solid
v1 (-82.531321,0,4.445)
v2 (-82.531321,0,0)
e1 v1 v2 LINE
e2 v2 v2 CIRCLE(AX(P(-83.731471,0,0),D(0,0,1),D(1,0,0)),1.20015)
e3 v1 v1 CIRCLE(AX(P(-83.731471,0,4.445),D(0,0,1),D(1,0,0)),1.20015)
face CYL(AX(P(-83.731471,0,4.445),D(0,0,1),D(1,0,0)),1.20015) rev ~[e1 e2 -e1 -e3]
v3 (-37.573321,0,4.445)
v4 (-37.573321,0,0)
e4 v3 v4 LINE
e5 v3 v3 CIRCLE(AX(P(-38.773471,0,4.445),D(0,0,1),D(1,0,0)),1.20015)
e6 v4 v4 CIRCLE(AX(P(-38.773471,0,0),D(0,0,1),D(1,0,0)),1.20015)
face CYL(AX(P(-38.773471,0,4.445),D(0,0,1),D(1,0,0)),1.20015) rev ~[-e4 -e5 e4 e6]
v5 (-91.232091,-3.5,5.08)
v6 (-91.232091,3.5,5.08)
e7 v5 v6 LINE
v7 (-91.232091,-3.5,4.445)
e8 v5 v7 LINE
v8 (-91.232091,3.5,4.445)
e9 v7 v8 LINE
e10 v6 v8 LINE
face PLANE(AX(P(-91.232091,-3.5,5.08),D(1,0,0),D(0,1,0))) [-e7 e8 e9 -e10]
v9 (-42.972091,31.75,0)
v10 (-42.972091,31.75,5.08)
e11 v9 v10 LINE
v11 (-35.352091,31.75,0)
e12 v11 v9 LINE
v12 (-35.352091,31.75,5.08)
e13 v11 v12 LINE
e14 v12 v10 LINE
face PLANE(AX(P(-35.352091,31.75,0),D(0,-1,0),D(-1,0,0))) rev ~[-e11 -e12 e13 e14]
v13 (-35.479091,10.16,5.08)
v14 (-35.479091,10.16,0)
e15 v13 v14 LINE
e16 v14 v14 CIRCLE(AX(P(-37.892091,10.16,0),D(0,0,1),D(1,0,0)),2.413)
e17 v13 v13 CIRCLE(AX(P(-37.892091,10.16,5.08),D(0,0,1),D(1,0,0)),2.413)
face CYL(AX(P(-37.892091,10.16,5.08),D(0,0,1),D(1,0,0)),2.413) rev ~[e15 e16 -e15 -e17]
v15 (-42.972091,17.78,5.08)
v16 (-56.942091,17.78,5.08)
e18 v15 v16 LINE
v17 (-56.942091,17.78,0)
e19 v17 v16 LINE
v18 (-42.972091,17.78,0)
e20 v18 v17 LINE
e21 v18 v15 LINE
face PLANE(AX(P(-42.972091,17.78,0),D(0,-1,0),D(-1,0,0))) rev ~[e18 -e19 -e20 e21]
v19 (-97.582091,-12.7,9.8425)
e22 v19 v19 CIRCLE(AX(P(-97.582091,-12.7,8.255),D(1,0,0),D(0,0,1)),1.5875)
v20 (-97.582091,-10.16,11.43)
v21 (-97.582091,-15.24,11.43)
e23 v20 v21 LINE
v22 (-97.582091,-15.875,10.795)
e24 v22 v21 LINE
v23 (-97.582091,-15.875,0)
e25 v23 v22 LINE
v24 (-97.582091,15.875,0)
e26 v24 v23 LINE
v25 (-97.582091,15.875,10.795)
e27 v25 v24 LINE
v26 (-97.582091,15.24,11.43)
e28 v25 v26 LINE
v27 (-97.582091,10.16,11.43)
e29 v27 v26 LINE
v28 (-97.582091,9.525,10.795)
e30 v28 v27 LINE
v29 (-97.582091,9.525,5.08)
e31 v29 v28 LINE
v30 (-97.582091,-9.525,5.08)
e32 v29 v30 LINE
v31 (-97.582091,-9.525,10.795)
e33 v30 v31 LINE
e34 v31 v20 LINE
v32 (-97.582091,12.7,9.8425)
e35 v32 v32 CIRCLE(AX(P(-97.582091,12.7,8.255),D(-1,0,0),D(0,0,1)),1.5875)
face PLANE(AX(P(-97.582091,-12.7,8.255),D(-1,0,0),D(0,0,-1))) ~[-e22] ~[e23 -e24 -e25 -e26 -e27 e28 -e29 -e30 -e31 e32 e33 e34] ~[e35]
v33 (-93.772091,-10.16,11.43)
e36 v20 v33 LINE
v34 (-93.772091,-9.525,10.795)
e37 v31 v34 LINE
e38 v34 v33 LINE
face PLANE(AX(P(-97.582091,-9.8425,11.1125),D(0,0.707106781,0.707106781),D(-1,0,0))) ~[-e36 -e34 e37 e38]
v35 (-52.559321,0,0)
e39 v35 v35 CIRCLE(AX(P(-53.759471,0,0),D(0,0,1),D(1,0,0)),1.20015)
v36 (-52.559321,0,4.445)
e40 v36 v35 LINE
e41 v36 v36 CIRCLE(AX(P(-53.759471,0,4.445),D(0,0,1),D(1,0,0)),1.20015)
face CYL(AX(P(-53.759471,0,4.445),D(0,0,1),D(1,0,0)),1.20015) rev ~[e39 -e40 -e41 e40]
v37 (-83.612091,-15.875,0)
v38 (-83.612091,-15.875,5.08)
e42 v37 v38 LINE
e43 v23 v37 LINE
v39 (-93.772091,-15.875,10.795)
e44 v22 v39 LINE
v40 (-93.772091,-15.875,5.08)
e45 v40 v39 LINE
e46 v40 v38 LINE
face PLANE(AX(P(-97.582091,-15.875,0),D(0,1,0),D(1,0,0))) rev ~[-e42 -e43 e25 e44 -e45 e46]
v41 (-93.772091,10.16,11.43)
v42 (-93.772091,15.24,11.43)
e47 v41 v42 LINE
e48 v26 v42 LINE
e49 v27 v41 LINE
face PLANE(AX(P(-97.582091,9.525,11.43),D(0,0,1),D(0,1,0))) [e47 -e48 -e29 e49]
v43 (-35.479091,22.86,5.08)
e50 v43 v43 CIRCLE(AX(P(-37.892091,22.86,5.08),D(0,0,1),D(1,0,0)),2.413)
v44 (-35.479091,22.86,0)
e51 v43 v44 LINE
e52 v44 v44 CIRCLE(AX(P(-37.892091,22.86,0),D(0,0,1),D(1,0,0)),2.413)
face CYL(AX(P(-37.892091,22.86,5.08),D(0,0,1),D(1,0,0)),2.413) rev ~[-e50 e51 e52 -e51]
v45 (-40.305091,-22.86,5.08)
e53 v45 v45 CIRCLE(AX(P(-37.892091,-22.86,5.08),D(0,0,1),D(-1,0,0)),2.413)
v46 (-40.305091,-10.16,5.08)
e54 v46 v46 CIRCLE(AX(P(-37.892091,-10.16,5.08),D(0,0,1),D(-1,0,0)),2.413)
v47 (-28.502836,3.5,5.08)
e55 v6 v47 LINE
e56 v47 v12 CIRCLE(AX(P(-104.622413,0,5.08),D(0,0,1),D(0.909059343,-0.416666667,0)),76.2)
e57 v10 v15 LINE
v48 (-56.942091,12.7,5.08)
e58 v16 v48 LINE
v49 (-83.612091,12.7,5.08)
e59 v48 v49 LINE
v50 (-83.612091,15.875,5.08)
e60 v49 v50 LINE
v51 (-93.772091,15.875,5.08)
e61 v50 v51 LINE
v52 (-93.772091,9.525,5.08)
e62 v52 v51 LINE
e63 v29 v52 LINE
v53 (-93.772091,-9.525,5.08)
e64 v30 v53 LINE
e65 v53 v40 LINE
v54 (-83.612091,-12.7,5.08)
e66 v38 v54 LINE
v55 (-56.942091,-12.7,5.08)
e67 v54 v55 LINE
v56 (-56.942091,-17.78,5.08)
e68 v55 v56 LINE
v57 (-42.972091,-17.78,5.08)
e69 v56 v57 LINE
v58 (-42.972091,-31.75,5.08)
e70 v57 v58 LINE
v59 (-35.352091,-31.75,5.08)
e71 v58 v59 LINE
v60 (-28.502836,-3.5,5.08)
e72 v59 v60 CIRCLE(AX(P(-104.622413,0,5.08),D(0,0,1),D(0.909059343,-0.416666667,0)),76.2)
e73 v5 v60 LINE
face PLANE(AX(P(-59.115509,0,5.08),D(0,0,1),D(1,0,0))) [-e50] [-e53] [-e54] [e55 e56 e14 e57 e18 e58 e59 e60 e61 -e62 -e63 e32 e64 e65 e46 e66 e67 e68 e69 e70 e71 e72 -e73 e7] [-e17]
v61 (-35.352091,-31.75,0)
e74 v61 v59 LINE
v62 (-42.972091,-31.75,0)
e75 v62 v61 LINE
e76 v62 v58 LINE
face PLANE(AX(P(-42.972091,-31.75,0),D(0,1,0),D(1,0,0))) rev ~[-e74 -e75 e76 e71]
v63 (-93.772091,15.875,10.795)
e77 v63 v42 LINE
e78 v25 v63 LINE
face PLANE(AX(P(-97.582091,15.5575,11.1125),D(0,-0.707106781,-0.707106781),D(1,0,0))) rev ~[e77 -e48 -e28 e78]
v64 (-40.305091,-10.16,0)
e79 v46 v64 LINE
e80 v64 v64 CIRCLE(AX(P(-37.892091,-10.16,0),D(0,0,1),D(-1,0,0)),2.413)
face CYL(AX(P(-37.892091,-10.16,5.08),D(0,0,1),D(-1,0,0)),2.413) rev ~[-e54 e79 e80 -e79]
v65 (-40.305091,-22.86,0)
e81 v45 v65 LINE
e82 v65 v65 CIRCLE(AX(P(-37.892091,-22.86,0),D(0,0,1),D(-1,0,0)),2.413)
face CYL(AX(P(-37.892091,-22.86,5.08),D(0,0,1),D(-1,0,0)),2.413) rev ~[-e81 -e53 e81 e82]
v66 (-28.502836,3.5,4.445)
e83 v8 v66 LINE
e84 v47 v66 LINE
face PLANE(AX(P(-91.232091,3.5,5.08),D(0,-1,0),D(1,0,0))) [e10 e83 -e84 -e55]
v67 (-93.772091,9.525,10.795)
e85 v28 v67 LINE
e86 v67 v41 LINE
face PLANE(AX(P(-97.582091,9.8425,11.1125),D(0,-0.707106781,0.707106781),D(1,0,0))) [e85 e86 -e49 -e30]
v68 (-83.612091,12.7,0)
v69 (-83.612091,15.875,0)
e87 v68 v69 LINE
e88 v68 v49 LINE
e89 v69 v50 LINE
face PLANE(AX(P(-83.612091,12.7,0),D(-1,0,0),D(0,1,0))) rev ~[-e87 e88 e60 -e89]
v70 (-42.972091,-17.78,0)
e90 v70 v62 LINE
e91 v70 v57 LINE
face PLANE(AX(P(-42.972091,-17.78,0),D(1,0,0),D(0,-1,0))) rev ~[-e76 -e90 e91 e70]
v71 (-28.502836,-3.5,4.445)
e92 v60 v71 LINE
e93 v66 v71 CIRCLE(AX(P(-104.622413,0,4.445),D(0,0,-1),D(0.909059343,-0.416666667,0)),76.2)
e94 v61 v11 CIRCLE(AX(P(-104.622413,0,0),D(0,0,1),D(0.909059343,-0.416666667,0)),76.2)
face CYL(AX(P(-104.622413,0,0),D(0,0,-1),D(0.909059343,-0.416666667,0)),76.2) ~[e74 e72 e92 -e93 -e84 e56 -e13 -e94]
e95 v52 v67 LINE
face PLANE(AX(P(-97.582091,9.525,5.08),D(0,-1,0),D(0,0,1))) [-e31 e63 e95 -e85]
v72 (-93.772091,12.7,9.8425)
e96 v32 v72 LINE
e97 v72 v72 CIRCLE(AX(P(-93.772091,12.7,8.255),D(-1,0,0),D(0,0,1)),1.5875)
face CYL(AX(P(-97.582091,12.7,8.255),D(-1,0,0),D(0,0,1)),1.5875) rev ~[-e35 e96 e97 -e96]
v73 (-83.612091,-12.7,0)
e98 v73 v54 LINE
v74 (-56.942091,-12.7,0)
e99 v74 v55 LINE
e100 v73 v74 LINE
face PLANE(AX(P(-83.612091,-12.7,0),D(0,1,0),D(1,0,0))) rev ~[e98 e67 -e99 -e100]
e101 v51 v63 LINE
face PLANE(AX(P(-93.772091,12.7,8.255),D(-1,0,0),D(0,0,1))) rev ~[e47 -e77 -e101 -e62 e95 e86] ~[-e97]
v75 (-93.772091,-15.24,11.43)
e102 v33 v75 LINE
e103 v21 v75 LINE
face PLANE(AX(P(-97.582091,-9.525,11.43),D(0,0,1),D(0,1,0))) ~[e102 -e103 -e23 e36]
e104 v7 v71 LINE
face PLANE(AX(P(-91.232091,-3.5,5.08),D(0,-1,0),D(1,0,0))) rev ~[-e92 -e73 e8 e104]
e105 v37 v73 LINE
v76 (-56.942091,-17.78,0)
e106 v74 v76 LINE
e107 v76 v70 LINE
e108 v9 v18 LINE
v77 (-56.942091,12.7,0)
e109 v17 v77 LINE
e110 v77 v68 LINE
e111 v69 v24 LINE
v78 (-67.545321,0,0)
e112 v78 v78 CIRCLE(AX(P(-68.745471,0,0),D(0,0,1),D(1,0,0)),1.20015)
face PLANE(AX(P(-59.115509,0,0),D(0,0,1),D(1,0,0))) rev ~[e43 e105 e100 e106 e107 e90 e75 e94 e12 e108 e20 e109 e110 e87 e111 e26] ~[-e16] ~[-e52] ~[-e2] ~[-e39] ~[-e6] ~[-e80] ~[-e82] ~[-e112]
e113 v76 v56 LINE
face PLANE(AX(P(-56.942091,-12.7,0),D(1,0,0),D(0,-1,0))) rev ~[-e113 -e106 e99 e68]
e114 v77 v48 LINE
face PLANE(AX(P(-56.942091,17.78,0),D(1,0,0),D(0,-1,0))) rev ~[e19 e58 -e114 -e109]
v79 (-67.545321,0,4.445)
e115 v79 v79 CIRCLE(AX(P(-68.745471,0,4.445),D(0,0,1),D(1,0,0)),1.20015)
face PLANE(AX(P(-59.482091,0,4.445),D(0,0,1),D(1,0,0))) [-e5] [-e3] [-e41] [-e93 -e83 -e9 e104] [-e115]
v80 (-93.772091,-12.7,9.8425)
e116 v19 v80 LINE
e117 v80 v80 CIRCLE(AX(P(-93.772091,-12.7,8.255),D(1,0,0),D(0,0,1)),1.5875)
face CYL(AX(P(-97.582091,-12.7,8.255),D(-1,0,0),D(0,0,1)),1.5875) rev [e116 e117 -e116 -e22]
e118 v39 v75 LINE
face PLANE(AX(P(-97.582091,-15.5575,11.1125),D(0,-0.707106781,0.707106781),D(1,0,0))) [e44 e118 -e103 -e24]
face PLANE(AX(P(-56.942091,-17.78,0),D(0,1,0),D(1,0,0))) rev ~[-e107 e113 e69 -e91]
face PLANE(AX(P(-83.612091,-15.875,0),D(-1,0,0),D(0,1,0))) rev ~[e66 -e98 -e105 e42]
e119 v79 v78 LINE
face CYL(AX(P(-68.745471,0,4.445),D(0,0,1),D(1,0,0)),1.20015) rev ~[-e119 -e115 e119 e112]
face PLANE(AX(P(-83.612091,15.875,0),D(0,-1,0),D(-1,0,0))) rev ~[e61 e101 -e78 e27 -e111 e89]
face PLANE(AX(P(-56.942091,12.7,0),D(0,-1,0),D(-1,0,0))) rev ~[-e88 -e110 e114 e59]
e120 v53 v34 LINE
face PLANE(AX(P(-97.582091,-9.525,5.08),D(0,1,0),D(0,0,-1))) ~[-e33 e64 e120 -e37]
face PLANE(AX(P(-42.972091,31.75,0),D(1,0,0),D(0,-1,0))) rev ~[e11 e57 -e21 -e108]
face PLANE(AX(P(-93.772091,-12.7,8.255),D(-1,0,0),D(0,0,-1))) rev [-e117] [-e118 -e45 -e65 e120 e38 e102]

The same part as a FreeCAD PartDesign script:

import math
import FreeCAD as App
import Part
import Sketcher
Q = App.Units.Quantity


def edges_at(feature, points):
    """Names of the edges that pass closest to the given points."""
    edges = feature.Shape.Edges
    near = lambda p: min(range(len(edges)), key=lambda i: edges[i].distToShape(Part.Vertex(*p))[0])
    return sorted({f"Edge{near(p) + 1}" for p in points})

doc = App.newDocument("Part")
body = doc.addObject("PartDesign::Body", "Body")

sketch1 = body.newObject("Sketcher::SketchObject", "Sketch")
sketch1.AttachmentSupport = (doc.getObject("XY_Plane"), [""])
sketch1.MapMode = "FlatFace"
sketch1.addGeometry([
    Part.LineSegment(App.Vector(-35.352091, 31.75, 0), App.Vector(-42.972091, 31.75, 0)),
    Part.LineSegment(App.Vector(-42.972091, 31.75, 0), App.Vector(-42.972091, 17.78, 0)),
    Part.LineSegment(App.Vector(-42.972091, 17.78, 0), App.Vector(-56.942091, 17.78, 0)),
    Part.LineSegment(App.Vector(-56.942091, 17.78, 0), App.Vector(-56.942091, 12.7, 0)),
    Part.LineSegment(App.Vector(-56.942091, 12.7, 0), App.Vector(-83.612091, 12.7, 0)),
    Part.LineSegment(App.Vector(-83.612091, 12.7, 0), App.Vector(-83.612091, 15.875, 0)),
    Part.LineSegment(App.Vector(-83.612091, 15.875, 0), App.Vector(-97.582091, 15.875, 0)),
    Part.LineSegment(App.Vector(-97.582091, 15.875, 0), App.Vector(-97.582091, -15.875, 0)),
    Part.LineSegment(App.Vector(-97.582091, -15.875, 0), App.Vector(-83.612091, -15.875, 0)),
    Part.LineSegment(App.Vector(-83.612091, -15.875, 0), App.Vector(-83.612091, -12.7, 0)),
    Part.LineSegment(App.Vector(-83.612091, -12.7, 0), App.Vector(-56.942091, -12.7, 0)),
    Part.LineSegment(App.Vector(-56.942091, -12.7, 0), App.Vector(-56.942091, -17.78, 0)),
    Part.LineSegment(App.Vector(-56.942091, -17.78, 0), App.Vector(-42.972091, -17.78, 0)),
    Part.LineSegment(App.Vector(-42.972091, -17.78, 0), App.Vector(-42.972091, -31.75, 0)),
    Part.LineSegment(App.Vector(-42.972091, -31.75, 0), App.Vector(-35.352091, -31.75, 0)),
    Part.ArcOfCircle(Part.Circle(App.Vector(-104.622413, 0, 0), App.Vector(0, 0, 1), 76.2), math.radians(-24.624318), math.radians(24.624318)),
], False)
sketch1.addConstraint([
    Sketcher.Constraint("Coincident", 0, 2, 1, 1),
    Sketcher.Constraint("Coincident", 1, 2, 2, 1),
    Sketcher.Constraint("Coincident", 2, 2, 3, 1),
    Sketcher.Constraint("Coincident", 3, 2, 4, 1),
    Sketcher.Constraint("Coincident", 4, 2, 5, 1),
    Sketcher.Constraint("Coincident", 5, 2, 6, 1),
    Sketcher.Constraint("Coincident", 6, 2, 7, 1),
    Sketcher.Constraint("Coincident", 7, 2, 8, 1),
    Sketcher.Constraint("Coincident", 8, 2, 9, 1),
    Sketcher.Constraint("Coincident", 9, 2, 10, 1),
    Sketcher.Constraint("Coincident", 10, 2, 11, 1),
    Sketcher.Constraint("Coincident", 11, 2, 12, 1),
    Sketcher.Constraint("Coincident", 12, 2, 13, 1),
    Sketcher.Constraint("Coincident", 13, 2, 14, 1),
    Sketcher.Constraint("Coincident", 14, 2, 15, 1),
    Sketcher.Constraint("Coincident", 15, 2, 0, 1),
    Sketcher.Constraint("Horizontal", 0),
    Sketcher.Constraint("Vertical", 1),
    Sketcher.Constraint("Horizontal", 2),
    Sketcher.Constraint("Vertical", 3),
    Sketcher.Constraint("Horizontal", 4),
    Sketcher.Constraint("Vertical", 5),
    Sketcher.Constraint("Horizontal", 6),
    Sketcher.Constraint("Vertical", 7),
    Sketcher.Constraint("Horizontal", 8),
    Sketcher.Constraint("Vertical", 9),
    Sketcher.Constraint("Horizontal", 10),
    Sketcher.Constraint("Vertical", 11),
    Sketcher.Constraint("Horizontal", 12),
    Sketcher.Constraint("Vertical", 13),
    Sketcher.Constraint("Horizontal", 14),
    Sketcher.Constraint("Symmetric", 5, 2, 8, 2, -1),
    Sketcher.Constraint("Symmetric", 3, 2, 10, 2, -1),
    Sketcher.Constraint("Symmetric", 1, 2, 12, 2, -1),
    Sketcher.Constraint("Symmetric", 14, 2, 15, 2, -1),
    Sketcher.Constraint("Equal", 2, 6),
    Sketcher.Constraint("Equal", 12, 1),
    Sketcher.Constraint("Radius", 15, Q("3 in")),
    Sketcher.Constraint("DistanceX", 0, 2, 0, 1, Q("0.3 in")),
    Sketcher.Constraint("DistanceY", 3, 2, 3, 1, Q("0.2 in")),
    Sketcher.Constraint("DistanceY", 9, 2, 4, 2, Q("1 in")),
    Sketcher.Constraint("DistanceX", 2, 2, 2, 1, Q("0.55 in")),
    Sketcher.Constraint("DistanceX", 4, 2, 4, 1, Q("1.05 in")),
    Sketcher.Constraint("DistanceY", 7, 2, 7, 1, Q("1.25 in")),
    Sketcher.Constraint("DistanceX", 0, 2, -1, 1, Q("42.972091 mm")),
])
pad1 = body.newObject("PartDesign::Pad", "Pad")
pad1.Profile = sketch1
pad1.Length = Q("0.2 in")

sketch2 = body.newObject("Sketcher::SketchObject", "Sketch001")
sketch2.AttachmentSupport = (doc.getObject("XY_Plane"), [""])
sketch2.MapMode = "FlatFace"
sketch2.AttachmentOffset = App.Placement(App.Vector(0, 0, 0.2 * 25.4), App.Rotation())
sketch2.addGeometry([
    Part.LineSegment(App.Vector(-91.232091, 3.5, 0), App.Vector(-91.232091, -3.5, 0)),
    Part.LineSegment(App.Vector(-91.232091, -3.5, 0), App.Vector(-27.732091, -3.5, 0)),
    Part.LineSegment(App.Vector(-27.732091, -3.5, 0), App.Vector(-27.732091, 3.5, 0)),
    Part.LineSegment(App.Vector(-27.732091, 3.5, 0), App.Vector(-91.232091, 3.5, 0)),
], False)
sketch2.addConstraint([
    Sketcher.Constraint("Coincident", 0, 2, 1, 1),
    Sketcher.Constraint("Coincident", 1, 2, 2, 1),
    Sketcher.Constraint("Coincident", 2, 2, 3, 1),
    Sketcher.Constraint("Coincident", 3, 2, 0, 1),
    Sketcher.Constraint("Vertical", 0),
    Sketcher.Constraint("Horizontal", 1),
    Sketcher.Constraint("Vertical", 2),
    Sketcher.Constraint("Horizontal", 3),
    Sketcher.Constraint("DistanceX", 1, 1, 1, 2, Q("2.5 in")),
    Sketcher.Constraint("DistanceY", 0, 2, 0, 1, Q("7 mm")),
    Sketcher.Constraint("DistanceY", 0, 2, -1, 1, Q("3.5 mm")),
    Sketcher.Constraint("DistanceX", 0, 2, -1, 1, Q("91.232091 mm")),
])
pocket1 = body.newObject("PartDesign::Pocket", "Pocket")
pocket1.Profile = sketch2
pocket1.Length = Q("0.025 in")

sketch3 = body.newObject("Sketcher::SketchObject", "Sketch002")
sketch3.AttachmentSupport = (doc.getObject("YZ_Plane"), [""])
sketch3.MapMode = "FlatFace"
sketch3.AttachmentOffset = App.Placement(App.Vector(0, 0, -97.582091), App.Rotation())
sketch3.addGeometry([
    Part.LineSegment(App.Vector(15.875, 5.08, 0), App.Vector(9.525, 5.08, 0)),
    Part.LineSegment(App.Vector(9.525, 5.08, 0), App.Vector(9.525, 11.43, 0)),
    Part.LineSegment(App.Vector(9.525, 11.43, 0), App.Vector(15.875, 11.43, 0)),
    Part.LineSegment(App.Vector(15.875, 11.43, 0), App.Vector(15.875, 5.08, 0)),
    Part.Circle(App.Vector(12.7, 8.255, 0), App.Vector(0, 0, 1), 1.5875),
], False)
sketch3.addConstraint([
    Sketcher.Constraint("Coincident", 0, 2, 1, 1),
    Sketcher.Constraint("Coincident", 1, 2, 2, 1),
    Sketcher.Constraint("Coincident", 2, 2, 3, 1),
    Sketcher.Constraint("Coincident", 3, 2, 0, 1),
    Sketcher.Constraint("Horizontal", 0),
    Sketcher.Constraint("Vertical", 1),
    Sketcher.Constraint("Horizontal", 2),
    Sketcher.Constraint("Vertical", 3),
    Sketcher.Constraint("Equal", 2, 1),
    Sketcher.Constraint("Diameter", 4, Q("0.125 in")),
    Sketcher.Constraint("DistanceX", 0, 2, 0, 1, Q("0.25 in")),
    Sketcher.Constraint("DistanceX", -1, 1, 4, 3, Q("0.5 in")),
    Sketcher.Constraint("DistanceY", -1, 1, 0, 2, Q("0.2 in")),
    Sketcher.Constraint("DistanceY", -1, 1, 4, 3, Q("0.325 in")),
    Sketcher.Constraint("DistanceX", -1, 1, 0, 2, Q("0.375 in")),
])
pad2 = body.newObject("PartDesign::Pad", "Pad001")
pad2.Profile = sketch3
pad2.Length = Q("0.15 in")
doc.recompute()

chamfer = body.newObject("PartDesign::Chamfer", "Chamfer")
chamfer.Base = (pad2, edges_at(pad2, [(-95.677, 9.525, 11.43), (-95.677, 15.875, 11.43)]))
chamfer.Size = Q("0.025 in")
doc.recompute()

mirrored = body.newObject("PartDesign::Mirrored", "Mirrored")
mirrored.Originals = [pad2]
mirrored.MirrorPlane = (doc.getObject("XZ_Plane"), [""])
body.Tip = mirrored
doc.recompute()

chamfer2 = body.newObject("PartDesign::Chamfer", "Chamfer001")
chamfer2.Base = (mirrored, edges_at(mirrored, [(-95.677, -9.525, 11.43), (-95.677, -15.875, 11.43)]))
chamfer2.Size = Q("0.025 in")

sketch4 = body.newObject("Sketcher::SketchObject", "Sketch003")
sketch4.AttachmentSupport = (doc.getObject("XY_Plane"), [""])
sketch4.MapMode = "FlatFace"
sketch4.AttachmentOffset = App.Placement(App.Vector(0, 0, 0.2 * 25.4), App.Rotation())
sketch4.addGeometry([
    Part.Circle(App.Vector(-37.892091, 22.86, 0), App.Vector(0, 0, 1), 2.413),
    Part.Circle(App.Vector(-37.892091, 10.16, 0), App.Vector(0, 0, 1), 2.413),
    Part.Circle(App.Vector(-37.892091, -10.16, 0), App.Vector(0, 0, 1), 2.413),
    Part.Circle(App.Vector(-37.892091, -22.86, 0), App.Vector(0, 0, 1), 2.413),
], False)
sketch4.addConstraint([
    Sketcher.Constraint("Equal", 0, 1),
    Sketcher.Constraint("Equal", 1, 2),
    Sketcher.Constraint("Equal", 2, 3),
    Sketcher.Constraint("Symmetric", 1, 3, 2, 3, -1),
    Sketcher.Constraint("Symmetric", 0, 3, 3, 3, -1),
    Sketcher.Constraint("Vertical", 0, 3, 1, 3),
    Sketcher.Constraint("Diameter", 0, Q("0.19 in")),
    Sketcher.Constraint("DistanceY", -1, 1, 0, 3, Q("0.9 in")),
    Sketcher.Constraint("DistanceY", -1, 1, 1, 3, Q("0.4 in")),
    Sketcher.Constraint("DistanceX", 0, 3, -1, 1, Q("37.892091 mm")),
])
pocket2 = body.newObject("PartDesign::Pocket", "Pocket001")
pocket2.Profile = sketch4
pocket2.Type = "ThroughAll"

sketch5 = body.newObject("Sketcher::SketchObject", "Sketch004")
sketch5.AttachmentSupport = (doc.getObject("XY_Plane"), [""])
sketch5.MapMode = "FlatFace"
sketch5.AttachmentOffset = App.Placement(App.Vector(0, 0, 0.175 * 25.4), App.Rotation())
sketch5.addGeometry([
    Part.Circle(App.Vector(-83.731471, 0, 0), App.Vector(0, 0, 1), 1.20015),
    Part.Circle(App.Vector(-68.745471, 0, 0), App.Vector(0, 0, 1), 1.20015),
    Part.Circle(App.Vector(-53.759471, 0, 0), App.Vector(0, 0, 1), 1.20015),
    Part.Circle(App.Vector(-38.773471, 0, 0), App.Vector(0, 0, 1), 1.20015),
], False)
sketch5.addConstraint([
    Sketcher.Constraint("Equal", 0, 1),
    Sketcher.Constraint("Equal", 1, 2),
    Sketcher.Constraint("Equal", 2, 3),
    Sketcher.Constraint("PointOnObject", 0, 3, -1),
    Sketcher.Constraint("PointOnObject", 1, 3, -1),
    Sketcher.Constraint("PointOnObject", 2, 3, -1),
    Sketcher.Constraint("PointOnObject", 3, 3, -1),
    Sketcher.Constraint("Diameter", 0, Q("0.0945 in")),
    Sketcher.Constraint("DistanceX", 0, 3, 1, 3, Q("0.59 in")),
    Sketcher.Constraint("DistanceX", 1, 3, 2, 3, Q("0.59 in")),
    Sketcher.Constraint("DistanceX", 2, 3, 3, 3, Q("0.59 in")),
    Sketcher.Constraint("DistanceX", 0, 3, -1, 1, Q("83.731471 mm")),
])
pocket3 = body.newObject("PartDesign::Pocket", "Pocket002")
pocket3.Profile = sketch5
pocket3.Type = "ThroughAll"

doc.recompute()
